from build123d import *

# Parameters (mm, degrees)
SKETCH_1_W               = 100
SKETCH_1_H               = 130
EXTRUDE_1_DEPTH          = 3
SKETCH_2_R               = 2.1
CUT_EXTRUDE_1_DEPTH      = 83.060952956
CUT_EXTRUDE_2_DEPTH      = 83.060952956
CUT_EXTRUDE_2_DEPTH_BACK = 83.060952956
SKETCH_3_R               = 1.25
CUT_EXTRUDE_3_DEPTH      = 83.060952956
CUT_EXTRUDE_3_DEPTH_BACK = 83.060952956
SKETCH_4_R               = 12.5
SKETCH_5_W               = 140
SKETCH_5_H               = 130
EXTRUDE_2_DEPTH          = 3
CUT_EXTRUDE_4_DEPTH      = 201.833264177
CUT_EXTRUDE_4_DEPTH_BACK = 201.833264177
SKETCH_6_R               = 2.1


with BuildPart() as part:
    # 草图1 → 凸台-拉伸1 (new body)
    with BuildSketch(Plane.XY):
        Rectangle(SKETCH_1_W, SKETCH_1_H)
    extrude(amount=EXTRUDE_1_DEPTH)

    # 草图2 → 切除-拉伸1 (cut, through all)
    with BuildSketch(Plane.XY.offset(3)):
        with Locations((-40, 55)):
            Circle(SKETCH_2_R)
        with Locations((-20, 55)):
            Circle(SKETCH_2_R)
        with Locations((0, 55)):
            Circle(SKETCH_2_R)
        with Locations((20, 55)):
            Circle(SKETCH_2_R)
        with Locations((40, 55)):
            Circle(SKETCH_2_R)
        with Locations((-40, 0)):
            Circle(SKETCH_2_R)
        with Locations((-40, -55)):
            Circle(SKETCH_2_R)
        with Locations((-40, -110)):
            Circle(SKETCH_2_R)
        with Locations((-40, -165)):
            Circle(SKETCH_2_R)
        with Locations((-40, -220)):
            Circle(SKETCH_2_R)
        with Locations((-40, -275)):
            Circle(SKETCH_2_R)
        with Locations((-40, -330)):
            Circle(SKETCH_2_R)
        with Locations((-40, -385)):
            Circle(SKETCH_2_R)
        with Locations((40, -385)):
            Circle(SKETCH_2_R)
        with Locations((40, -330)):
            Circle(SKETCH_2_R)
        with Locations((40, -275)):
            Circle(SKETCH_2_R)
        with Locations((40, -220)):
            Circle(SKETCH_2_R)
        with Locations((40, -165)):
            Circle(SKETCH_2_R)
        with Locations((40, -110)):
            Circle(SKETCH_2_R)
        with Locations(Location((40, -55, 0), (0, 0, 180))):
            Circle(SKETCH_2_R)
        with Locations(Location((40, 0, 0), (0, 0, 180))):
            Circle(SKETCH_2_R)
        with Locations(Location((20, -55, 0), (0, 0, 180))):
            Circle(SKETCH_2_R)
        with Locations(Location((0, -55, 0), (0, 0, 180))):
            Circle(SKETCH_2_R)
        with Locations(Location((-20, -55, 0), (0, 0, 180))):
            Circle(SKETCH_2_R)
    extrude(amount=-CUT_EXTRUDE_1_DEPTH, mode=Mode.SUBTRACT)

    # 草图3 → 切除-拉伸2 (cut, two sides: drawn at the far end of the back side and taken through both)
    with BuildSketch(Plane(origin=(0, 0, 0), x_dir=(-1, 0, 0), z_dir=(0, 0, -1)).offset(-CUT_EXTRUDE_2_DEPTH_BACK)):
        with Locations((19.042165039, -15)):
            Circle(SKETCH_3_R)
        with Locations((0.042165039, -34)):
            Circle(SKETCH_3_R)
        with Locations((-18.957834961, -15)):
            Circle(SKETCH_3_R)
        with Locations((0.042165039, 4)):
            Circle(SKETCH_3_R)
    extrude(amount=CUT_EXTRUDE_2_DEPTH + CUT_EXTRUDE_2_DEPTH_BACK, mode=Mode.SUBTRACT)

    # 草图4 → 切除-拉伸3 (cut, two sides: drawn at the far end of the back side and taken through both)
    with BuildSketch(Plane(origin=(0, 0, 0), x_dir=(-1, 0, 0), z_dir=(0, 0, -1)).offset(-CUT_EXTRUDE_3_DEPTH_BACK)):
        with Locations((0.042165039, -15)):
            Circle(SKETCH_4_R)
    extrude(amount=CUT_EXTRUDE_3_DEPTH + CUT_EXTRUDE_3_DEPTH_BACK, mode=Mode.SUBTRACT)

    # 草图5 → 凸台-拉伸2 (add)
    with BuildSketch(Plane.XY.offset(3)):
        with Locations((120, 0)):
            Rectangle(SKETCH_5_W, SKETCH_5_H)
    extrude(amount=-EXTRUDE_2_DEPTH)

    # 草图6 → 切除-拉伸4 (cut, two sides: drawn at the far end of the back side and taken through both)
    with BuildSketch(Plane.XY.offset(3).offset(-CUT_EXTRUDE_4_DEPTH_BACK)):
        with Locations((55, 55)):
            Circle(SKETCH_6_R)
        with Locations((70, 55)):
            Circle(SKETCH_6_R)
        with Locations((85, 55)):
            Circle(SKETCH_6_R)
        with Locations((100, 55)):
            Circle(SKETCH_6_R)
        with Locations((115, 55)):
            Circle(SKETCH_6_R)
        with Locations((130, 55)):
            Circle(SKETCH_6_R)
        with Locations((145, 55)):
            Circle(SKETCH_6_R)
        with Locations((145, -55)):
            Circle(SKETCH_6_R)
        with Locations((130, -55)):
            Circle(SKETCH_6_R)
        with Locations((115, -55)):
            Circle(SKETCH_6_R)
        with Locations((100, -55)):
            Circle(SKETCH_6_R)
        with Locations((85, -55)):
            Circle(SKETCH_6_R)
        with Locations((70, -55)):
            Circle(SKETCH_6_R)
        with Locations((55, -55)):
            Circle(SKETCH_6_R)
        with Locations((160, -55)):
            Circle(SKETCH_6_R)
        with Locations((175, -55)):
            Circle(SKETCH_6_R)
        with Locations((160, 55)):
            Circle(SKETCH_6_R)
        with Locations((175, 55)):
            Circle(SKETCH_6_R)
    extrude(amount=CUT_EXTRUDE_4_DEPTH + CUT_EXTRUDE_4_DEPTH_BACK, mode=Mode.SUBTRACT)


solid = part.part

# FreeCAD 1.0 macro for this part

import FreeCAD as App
import Part
import Sketcher

V = App.Vector
Q = App.Units.Quantity


def add_polygon(sketch, points):
    """Adds a closed chain of lines whose ends are joined by coincident constraints."""
    first, n = sketch.GeometryCount, len(points)
    for a, b in zip(points, points[1:] + points[:1]):
        sketch.addGeometry(Part.LineSegment(App.Vector(*a, 0), App.Vector(*b, 0)), False)
    for i in range(n):
        sketch.addConstraint(Sketcher.Constraint("Coincident", first + i, 2, first + (i + 1) % n, 1))

doc = App.newDocument("Part")
body = doc.addObject("PartDesign::Body", "Body")

# Sketch on XY plane
sketch1 = doc.addObject("Sketcher::SketchObject", "Sketch")
body.addObject(sketch1)
sketch1.AttachmentSupport = (doc.XY_Plane, [""])
sketch1.MapMode = "FlatFace"
add_polygon(sketch1, [(-50, 65), (-50, -65), (50, -65), (50, 65)])  # lines 0-3
sketch1.addConstraint([
    Sketcher.Constraint("Vertical", 0),
    Sketcher.Constraint("Horizontal", 1),
    Sketcher.Constraint("Vertical", 2),
    Sketcher.Constraint("Horizontal", 3),
    Sketcher.Constraint("Symmetric", 0, 2, 2, 2, -1, 1),
    Sketcher.Constraint("DistanceX", 1, 1, 1, 2, Q("100 mm")),
    Sketcher.Constraint("DistanceY", 0, 2, 0, 1, Q("130 mm")),
])
pad1 = doc.addObject("PartDesign::Pad", "Pad")
body.addObject(pad1)
pad1.Profile = sketch1
pad1.Length = 3

# Sketch on XY plane
sketch2 = doc.addObject("Sketcher::SketchObject", "Sketch001")
body.addObject(sketch2)
sketch2.AttachmentSupport = (doc.XY_Plane, [""])
sketch2.MapMode = "FlatFace"
sketch2.AttachmentOffset = App.Placement(V(0, 0, 3), App.Rotation())
sketch2.addGeometry([
    Part.Circle(V(-40, 55, 0), V(0, 0, 1), 2.1),  # 0
    Part.Circle(V(-20, 55, 0), V(0, 0, 1), 2.1),  # 1
    Part.Circle(V(0, 55, 0), V(0, 0, 1), 2.1),  # 2
    Part.Circle(V(20, 55, 0), V(0, 0, 1), 2.1),  # 3
    Part.Circle(V(40, 55, 0), V(0, 0, 1), 2.1),  # 4
    Part.Circle(V(-40, 0, 0), V(0, 0, 1), 2.1),  # 5
    Part.Circle(V(-40, -55, 0), V(0, 0, 1), 2.1),  # 6
    Part.Circle(V(-40, -110, 0), V(0, 0, 1), 2.1),  # 7
    Part.Circle(V(-40, -165, 0), V(0, 0, 1), 2.1),  # 8
    Part.Circle(V(-40, -220, 0), V(0, 0, 1), 2.1),  # 9
    Part.Circle(V(-40, -275, 0), V(0, 0, 1), 2.1),  # 10
    Part.Circle(V(-40, -330, 0), V(0, 0, 1), 2.1),  # 11
    Part.Circle(V(-40, -385, 0), V(0, 0, 1), 2.1),  # 12
    Part.Circle(V(40, -385, 0), V(0, 0, 1), 2.1),  # 13
    Part.Circle(V(40, -330, 0), V(0, 0, 1), 2.1),  # 14
    Part.Circle(V(40, -275, 0), V(0, 0, 1), 2.1),  # 15
    Part.Circle(V(40, -220, 0), V(0, 0, 1), 2.1),  # 16
    Part.Circle(V(40, -165, 0), V(0, 0, 1), 2.1),  # 17
    Part.Circle(V(40, -110, 0), V(0, 0, 1), 2.1),  # 18
    Part.Circle(V(40, -55, 0), V(0, 0, 1), 2.1),  # 19
    Part.Circle(V(40, 0, 0), V(0, 0, 1), 2.1),  # 20
    Part.Circle(V(20, -55, 0), V(0, 0, 1), 2.1),  # 21
    Part.Circle(V(0, -55, 0), V(0, 0, 1), 2.1),  # 22
    Part.Circle(V(-20, -55, 0), V(0, 0, 1), 2.1),  # 23
], False)
sketch2.addConstraint([
    Sketcher.Constraint("Equal", 0, 1),
    Sketcher.Constraint("Equal", 1, 2),
    Sketcher.Constraint("Equal", 2, 3),
    Sketcher.Constraint("Equal", 3, 4),
    Sketcher.Constraint("Equal", 4, 5),
    Sketcher.Constraint("Equal", 5, 6),
    Sketcher.Constraint("Equal", 6, 7),
    Sketcher.Constraint("Equal", 7, 8),
    Sketcher.Constraint("Equal", 8, 9),
    Sketcher.Constraint("Equal", 9, 10),
    Sketcher.Constraint("Equal", 10, 11),
    Sketcher.Constraint("Equal", 11, 12),
    Sketcher.Constraint("Equal", 12, 13),
    Sketcher.Constraint("Equal", 13, 14),
    Sketcher.Constraint("Equal", 14, 15),
    Sketcher.Constraint("Equal", 15, 16),
    Sketcher.Constraint("Equal", 16, 17),
    Sketcher.Constraint("Equal", 17, 18),
    Sketcher.Constraint("Equal", 18, 19),
    Sketcher.Constraint("Equal", 19, 20),
    Sketcher.Constraint("Equal", 20, 21),
    Sketcher.Constraint("Equal", 21, 22),
    Sketcher.Constraint("Equal", 22, 23),
    Sketcher.Constraint("Symmetric", 4, 3, 6, 3, -1, 1),
    Sketcher.Constraint("Symmetric", 0, 3, 19, 3, -1, 1),
    Sketcher.Constraint("Symmetric", 5, 3, 20, 3, -1, 1),
    Sketcher.Constraint("Symmetric", 1, 3, 21, 3, -1, 1),
    Sketcher.Constraint("Symmetric", 2, 3, 22, 3, -1, 1),
    Sketcher.Constraint("Symmetric", 3, 3, 23, 3, -1, 1),
    Sketcher.Constraint("Symmetric", 1, 3, 3, 3, -2),
    Sketcher.Constraint("Symmetric", 0, 3, 4, 3, -2),
    Sketcher.Constraint("Symmetric", 12, 3, 13, 3, -2),
    Sketcher.Constraint("Symmetric", 11, 3, 14, 3, -2),
    Sketcher.Constraint("Symmetric", 10, 3, 15, 3, -2),
    Sketcher.Constraint("Symmetric", 9, 3, 16, 3, -2),
    Sketcher.Constraint("Symmetric", 8, 3, 17, 3, -2),
    Sketcher.Constraint("Symmetric", 7, 3, 18, 3, -2),
    Sketcher.Constraint("PointOnObject", 2, 3, -2),
    Sketcher.Constraint("PointOnObject", 5, 3, -1),
    Sketcher.Constraint("Horizontal", 0, 3, 1, 3),
    Sketcher.Constraint("Horizontal", 1, 3, 2, 3),
    Sketcher.Constraint("Vertical", 0, 3, 5, 3),
    Sketcher.Constraint("Vertical", 6, 3, 7, 3),
    Sketcher.Constraint("Vertical", 7, 3, 8, 3),
    Sketcher.Constraint("Vertical", 8, 3, 9, 3),
    Sketcher.Constraint("Vertical", 9, 3, 10, 3),
    Sketcher.Constraint("Vertical", 10, 3, 11, 3),
    Sketcher.Constraint("Vertical", 11, 3, 12, 3),
    Sketcher.Constraint("Diameter", 0, Q("4.2 mm")),
    Sketcher.Constraint("DistanceX", 0, 3, -1, 1, Q("40 mm")),
    Sketcher.Constraint("DistanceY", -1, 1, 0, 3, Q("55 mm")),
    Sketcher.Constraint("DistanceX", 1, 3, -1, 1, Q("20 mm")),
    Sketcher.Constraint("DistanceY", 7, 3, -1, 1, Q("110 mm")),
    Sketcher.Constraint("DistanceY", 8, 3, -1, 1, Q("165 mm")),
    Sketcher.Constraint("DistanceY", 9, 3, -1, 1, Q("220 mm")),
    Sketcher.Constraint("DistanceY", 10, 3, -1, 1, Q("275 mm")),
    Sketcher.Constraint("DistanceY", 11, 3, -1, 1, Q("330 mm")),
    Sketcher.Constraint("DistanceY", 12, 3, -1, 1, Q("385 mm")),
])
pocket1 = doc.addObject("PartDesign::Pocket", "Pocket")
body.addObject(pocket1)
pocket1.Profile = sketch2
pocket1.Type = "ThroughAll"

# Sketch on XY plane
sketch3 = doc.addObject("Sketcher::SketchObject", "Sketch002")
body.addObject(sketch3)
sketch3.AttachmentSupport = (doc.XY_Plane, [""])
sketch3.MapMode = "FlatFace"
sketch3.addGeometry([
    Part.Circle(V(-19, -15, 0), V(0, 0, 1), 1.2),
    Part.Circle(V(0, -34, 0), V(0, 0, 1), 1.2),
    Part.Circle(V(19, -15, 0), V(0, 0, 1), 1.2),
    Part.Circle(V(0, 4, 0), V(0, 0, 1), 1.2),
], False)
sketch3.addConstraint([
    Sketcher.Constraint("Equal", 0, 1),
    Sketcher.Constraint("Equal", 1, 2),
    Sketcher.Constraint("Equal", 2, 3),
    Sketcher.Constraint("Horizontal", 0, 3, 2, 3),
    Sketcher.Constraint("Vertical", 1, 3, 3, 3),
    Sketcher.Constraint("Diameter", 0, Q("2.5 mm")),
    Sketcher.Constraint("DistanceY", 0, 3, -1, 1, Q("15 mm")),
    Sketcher.Constraint("DistanceY", 1, 3, -1, 1, Q("34 mm")),
    Sketcher.Constraint("DistanceY", -1, 1, 3, 3, Q("4 mm")),
    Sketcher.Constraint("DistanceX", 0, 3, 1, 3, Q("19 mm")),
    Sketcher.Constraint("DistanceX", 1, 3, 2, 3, Q("19 mm")),
    Sketcher.Constraint("DistanceX", 0, 3, -1, 1, Q("19.042165 mm")),
])
pocket2 = doc.addObject("PartDesign::Pocket", "Pocket001")
body.addObject(pocket2)
pocket2.Profile = sketch3
pocket2.Type = "ThroughAll"
pocket2.Midplane = True

# Sketch on XY plane
sketch4 = doc.addObject("Sketcher::SketchObject", "Sketch003")
body.addObject(sketch4)
sketch4.AttachmentSupport = (doc.XY_Plane, [""])
sketch4.MapMode = "FlatFace"
sketch4.addGeometry(Part.Circle(V(0, -15, 0), V(0, 0, 1), 12), False)
sketch4.addConstraint([
    Sketcher.Constraint("Diameter", 0, Q("25 mm")),
    Sketcher.Constraint("DistanceY", 0, 3, -1, 1, Q("15 mm")),
    Sketcher.Constraint("DistanceX", 0, 3, -1, 1, Q("0.042165 mm")),
])
pocket3 = doc.addObject("PartDesign::Pocket", "Pocket002")
body.addObject(pocket3)
pocket3.Profile = sketch4
pocket3.Type = "ThroughAll"
pocket3.Midplane = True

# Sketch on XY plane
sketch5 = doc.addObject("Sketcher::SketchObject", "Sketch004")
body.addObject(sketch5)
sketch5.AttachmentSupport = (doc.XY_Plane, [""])
sketch5.MapMode = "FlatFace"
sketch5.AttachmentOffset = App.Placement(V(0, 0, 3), App.Rotation())
add_polygon(sketch5, [(50, 65), (50, -65), (190, -65), (190, 65)])  # lines 0-3
sketch5.addConstraint([
    Sketcher.Constraint("Vertical", 0),
    Sketcher.Constraint("Horizontal", 1),
    Sketcher.Constraint("Vertical", 2),
    Sketcher.Constraint("Horizontal", 3),
    Sketcher.Constraint("DistanceX", 1, 1, 1, 2, Q("140 mm")),
    Sketcher.Constraint("DistanceY", 0, 2, 0, 1, Q("130 mm")),
    Sketcher.Constraint("DistanceX", -1, 1, 0, 2, Q("50 mm")),
    Sketcher.Constraint("DistanceY", 0, 2, -1, 1, Q("65 mm")),
])
pad2 = doc.addObject("PartDesign::Pad", "Pad001")
body.addObject(pad2)
pad2.Profile = sketch5
pad2.Length = 3
pad2.Reversed = True

# Sketch on XY plane
sketch6 = doc.addObject("Sketcher::SketchObject", "Sketch005")
body.addObject(sketch6)
sketch6.AttachmentSupport = (doc.XY_Plane, [""])
sketch6.MapMode = "FlatFace"
sketch6.AttachmentOffset = App.Placement(V(0, 0, 3), App.Rotation())
sketch6.addGeometry([
    Part.Circle(V(55, 55, 0), V(0, 0, 1), 2.1),  # 0
    Part.Circle(V(70, 55, 0), V(0, 0, 1), 2.1),  # 1
    Part.Circle(V(85, 55, 0), V(0, 0, 1), 2.1),  # 2
    Part.Circle(V(100, 55, 0), V(0, 0, 1), 2.1),  # 3
    Part.Circle(V(115, 55, 0), V(0, 0, 1), 2.1),  # 4
    Part.Circle(V(130, 55, 0), V(0, 0, 1), 2.1),  # 5
    Part.Circle(V(145, 55, 0), V(0, 0, 1), 2.1),  # 6
    Part.Circle(V(145, -55, 0), V(0, 0, 1), 2.1),  # 7
    Part.Circle(V(130, -55, 0), V(0, 0, 1), 2.1),  # 8
    Part.Circle(V(115, -55, 0), V(0, 0, 1), 2.1),  # 9
    Part.Circle(V(100, -55, 0), V(0, 0, 1), 2.1),  # 10
    Part.Circle(V(85, -55, 0), V(0, 0, 1), 2.1),  # 11
    Part.Circle(V(70, -55, 0), V(0, 0, 1), 2.1),  # 12
    Part.Circle(V(55, -55, 0), V(0, 0, 1), 2.1),  # 13
    Part.Circle(V(160, -55, 0), V(0, 0, 1), 2.1),  # 14
    Part.Circle(V(175, -55, 0), V(0, 0, 1), 2.1),  # 15
    Part.Circle(V(160, 55, 0), V(0, 0, 1), 2.1),  # 16
    Part.Circle(V(175, 55, 0), V(0, 0, 1), 2.1),  # 17
], False)
sketch6.addConstraint([
    Sketcher.Constraint("Equal", 0, 1),
    Sketcher.Constraint("Equal", 1, 2),
    Sketcher.Constraint("Equal", 2, 3),
    Sketcher.Constraint("Equal", 3, 4),
    Sketcher.Constraint("Equal", 4, 5),
    Sketcher.Constraint("Equal", 5, 6),
    Sketcher.Constraint("Equal", 6, 7),
    Sketcher.Constraint("Equal", 7, 8),
    Sketcher.Constraint("Equal", 8, 9),
    Sketcher.Constraint("Equal", 9, 10),
    Sketcher.Constraint("Equal", 10, 11),
    Sketcher.Constraint("Equal", 11, 12),
    Sketcher.Constraint("Equal", 12, 13),
    Sketcher.Constraint("Equal", 13, 14),
    Sketcher.Constraint("Equal", 14, 15),
    Sketcher.Constraint("Equal", 15, 16),
    Sketcher.Constraint("Equal", 16, 17),
    Sketcher.Constraint("Symmetric", 6, 3, 7, 3, -1),
    Sketcher.Constraint("Symmetric", 5, 3, 8, 3, -1),
    Sketcher.Constraint("Symmetric", 4, 3, 9, 3, -1),
    Sketcher.Constraint("Symmetric", 3, 3, 10, 3, -1),
    Sketcher.Constraint("Symmetric", 2, 3, 11, 3, -1),
    Sketcher.Constraint("Symmetric", 1, 3, 12, 3, -1),
    Sketcher.Constraint("Symmetric", 0, 3, 13, 3, -1),
    Sketcher.Constraint("Symmetric", 14, 3, 16, 3, -1),
    Sketcher.Constraint("Symmetric", 15, 3, 17, 3, -1),
    Sketcher.Constraint("Horizontal", 0, 3, 1, 3),
    Sketcher.Constraint("Horizontal", 1, 3, 2, 3),
    Sketcher.Constraint("Horizontal", 2, 3, 3, 3),
    Sketcher.Constraint("Horizontal", 3, 3, 4, 3),
    Sketcher.Constraint("Horizontal", 4, 3, 5, 3),
    Sketcher.Constraint("Horizontal", 5, 3, 6, 3),
    Sketcher.Constraint("Horizontal", 13, 3, 14, 3),
    Sketcher.Constraint("Horizontal", 14, 3, 15, 3),
    Sketcher.Constraint("Diameter", 0, Q("4.2 mm")),
    Sketcher.Constraint("DistanceX", -1, 1, 0, 3, Q("55 mm")),
    Sketcher.Constraint("DistanceY", -1, 1, 0, 3, Q("55 mm")),
    Sketcher.Constraint("DistanceX", -1, 1, 1, 3, Q("70 mm")),
    Sketcher.Constraint("DistanceX", -1, 1, 2, 3, Q("85 mm")),
    Sketcher.Constraint("DistanceX", -1, 1, 3, 3, Q("100 mm")),
    Sketcher.Constraint("DistanceX", -1, 1, 4, 3, Q("115 mm")),
    Sketcher.Constraint("DistanceX", -1, 1, 5, 3, Q("130 mm")),
    Sketcher.Constraint("DistanceX", -1, 1, 6, 3, Q("145 mm")),
    Sketcher.Constraint("DistanceX", -1, 1, 14, 3, Q("160 mm")),
    Sketcher.Constraint("DistanceX", -1, 1, 15, 3, Q("175 mm")),
])
pocket4 = doc.addObject("PartDesign::Pocket", "Pocket003")
body.addObject(pocket4)
pocket4.Profile = sketch6
pocket4.Type = "ThroughAll"
pocket4.Midplane = True

doc.recompute()
